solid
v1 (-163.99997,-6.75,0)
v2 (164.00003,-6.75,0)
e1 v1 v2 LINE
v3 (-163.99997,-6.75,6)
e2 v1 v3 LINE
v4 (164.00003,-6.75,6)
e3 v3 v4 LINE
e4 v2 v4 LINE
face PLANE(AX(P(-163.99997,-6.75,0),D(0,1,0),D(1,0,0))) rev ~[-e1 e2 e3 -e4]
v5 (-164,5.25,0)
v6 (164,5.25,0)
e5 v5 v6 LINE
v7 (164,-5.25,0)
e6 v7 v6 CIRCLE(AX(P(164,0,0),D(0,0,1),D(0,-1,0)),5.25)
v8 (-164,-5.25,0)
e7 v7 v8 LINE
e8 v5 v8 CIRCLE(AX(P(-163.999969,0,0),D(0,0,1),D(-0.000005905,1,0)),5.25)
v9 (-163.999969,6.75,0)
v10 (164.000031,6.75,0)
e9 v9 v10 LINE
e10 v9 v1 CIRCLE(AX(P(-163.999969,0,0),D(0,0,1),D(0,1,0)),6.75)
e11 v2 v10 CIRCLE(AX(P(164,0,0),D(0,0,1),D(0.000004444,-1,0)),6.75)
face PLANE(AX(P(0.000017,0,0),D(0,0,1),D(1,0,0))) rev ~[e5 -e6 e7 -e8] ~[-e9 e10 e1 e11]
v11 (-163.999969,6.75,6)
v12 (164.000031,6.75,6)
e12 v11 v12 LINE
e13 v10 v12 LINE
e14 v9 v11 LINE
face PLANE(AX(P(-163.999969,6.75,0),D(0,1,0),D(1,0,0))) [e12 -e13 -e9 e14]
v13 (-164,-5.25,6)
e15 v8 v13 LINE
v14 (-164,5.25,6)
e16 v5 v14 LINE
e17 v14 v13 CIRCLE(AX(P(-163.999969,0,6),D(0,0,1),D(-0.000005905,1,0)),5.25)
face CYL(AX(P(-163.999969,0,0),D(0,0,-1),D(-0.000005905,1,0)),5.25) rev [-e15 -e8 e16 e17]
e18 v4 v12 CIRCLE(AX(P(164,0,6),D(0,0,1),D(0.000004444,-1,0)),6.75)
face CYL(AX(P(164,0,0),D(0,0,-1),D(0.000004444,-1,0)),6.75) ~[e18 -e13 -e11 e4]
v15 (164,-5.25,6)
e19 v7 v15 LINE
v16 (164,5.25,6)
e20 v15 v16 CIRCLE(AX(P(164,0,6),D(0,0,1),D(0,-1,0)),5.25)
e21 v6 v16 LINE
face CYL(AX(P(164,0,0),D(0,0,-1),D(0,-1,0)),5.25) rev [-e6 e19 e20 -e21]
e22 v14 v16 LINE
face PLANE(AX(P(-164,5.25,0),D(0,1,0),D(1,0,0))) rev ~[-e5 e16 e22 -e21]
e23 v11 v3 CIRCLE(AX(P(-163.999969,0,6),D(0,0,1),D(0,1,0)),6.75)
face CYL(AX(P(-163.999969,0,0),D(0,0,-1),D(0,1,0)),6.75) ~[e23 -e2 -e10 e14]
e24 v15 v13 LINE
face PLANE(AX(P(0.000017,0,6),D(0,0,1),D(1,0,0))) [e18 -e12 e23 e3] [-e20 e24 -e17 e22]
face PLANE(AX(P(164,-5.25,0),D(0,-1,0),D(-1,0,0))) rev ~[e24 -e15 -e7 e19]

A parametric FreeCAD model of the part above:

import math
import FreeCAD as App
import Part
import Sketcher

doc = App.newDocument("Part")
body = doc.addObject("PartDesign::Body", "Body")

# Sketch on XY plane
sketch1 = doc.addObject("Sketcher::SketchObject", "Sketch")
body.addObject(sketch1)
sketch1.AttachmentSupport = (doc.XY_Plane, [""])
sketch1.MapMode = "FlatFace"
sketch1.addGeometry([
    Part.ArcOfCircle(Part.Circle(App.Vector(-163.999969, 0, 0), App.Vector(0, 0, 1), 6.75), math.radians(90), math.radians(269.999992)),  # 0
    Part.LineSegment(App.Vector(-163.99997, -6.75, 0), App.Vector(164.00003, -6.75, 0)),  # 1
    Part.ArcOfCircle(Part.Circle(App.Vector(164, 0, 0), App.Vector(0, 0, 1), 6.75), math.radians(-89.999745), math.radians(89.999737)),  # 2
    Part.LineSegment(App.Vector(164.000031, 6.75, 0), App.Vector(-163.999969, 6.75, 0)),  # 3
    Part.ArcOfCircle(Part.Circle(App.Vector(-163.999969, 0, 0), App.Vector(0, 0, 1), 5.25), math.radians(90.000338), math.radians(269.999662)),  # 4
    Part.LineSegment(App.Vector(-164, 5.25, 0), App.Vector(164, 5.25, 0)),  # 5
    Part.ArcOfCircle(Part.Circle(App.Vector(164, 0, 0), App.Vector(0, 0, 1), 5.25), math.radians(-90), math.radians(90)),  # 6
    Part.LineSegment(App.Vector(164, -5.25, 0), App.Vector(-164, -5.25, 0)),  # 7
], False)
sketch1.addConstraint([
    Sketcher.Constraint("Tangent", 0, 2, 1, 1),
    Sketcher.Constraint("Coincident", 1, 2, 2, 1),
    Sketcher.Constraint("Coincident", 2, 2, 3, 1),
    Sketcher.Constraint("Tangent", 3, 2, 0, 1),
    Sketcher.Constraint("Coincident", 4, 1, 5, 1),
    Sketcher.Constraint("Tangent", 5, 2, 6, 2),
    Sketcher.Constraint("Tangent", 6, 1, 7, 1),
    Sketcher.Constraint("Coincident", 7, 2, 4, 2),
    Sketcher.Constraint("Horizontal", 1),
    Sketcher.Constraint("Horizontal", 3),
    Sketcher.Constraint("Horizontal", 5),
    Sketcher.Constraint("Horizontal", 7),
    Sketcher.Constraint("Coincident", 4, 3, 0, 3),
    Sketcher.Constraint("Symmetric", 4, 1, 6, 1, -1, 1),
    Sketcher.Constraint("Vertical", 1, 2, 2, 2),
    Sketcher.Constraint("Vertical", 4, 1, 7, 2),
    Sketcher.Constraint("Equal", 3, 5),
    Sketcher.Constraint("DistanceX", 1, 1, 1, 2, 328.0),
    Sketcher.Constraint("Radius", 0, 6.75),
    Sketcher.Constraint("Radius", 4, 5.25),
    Sketcher.Constraint("DistanceX", -1, 1, 2, 3, 164.0),
    Sketcher.Constraint("DistanceX", 0, 3, -1, 1, 163.999969),
])
pad1 = doc.addObject("PartDesign::Pad", "Pad")
body.addObject(pad1)
pad1.Profile = sketch1
pad1.Length = 6

doc.recompute()
